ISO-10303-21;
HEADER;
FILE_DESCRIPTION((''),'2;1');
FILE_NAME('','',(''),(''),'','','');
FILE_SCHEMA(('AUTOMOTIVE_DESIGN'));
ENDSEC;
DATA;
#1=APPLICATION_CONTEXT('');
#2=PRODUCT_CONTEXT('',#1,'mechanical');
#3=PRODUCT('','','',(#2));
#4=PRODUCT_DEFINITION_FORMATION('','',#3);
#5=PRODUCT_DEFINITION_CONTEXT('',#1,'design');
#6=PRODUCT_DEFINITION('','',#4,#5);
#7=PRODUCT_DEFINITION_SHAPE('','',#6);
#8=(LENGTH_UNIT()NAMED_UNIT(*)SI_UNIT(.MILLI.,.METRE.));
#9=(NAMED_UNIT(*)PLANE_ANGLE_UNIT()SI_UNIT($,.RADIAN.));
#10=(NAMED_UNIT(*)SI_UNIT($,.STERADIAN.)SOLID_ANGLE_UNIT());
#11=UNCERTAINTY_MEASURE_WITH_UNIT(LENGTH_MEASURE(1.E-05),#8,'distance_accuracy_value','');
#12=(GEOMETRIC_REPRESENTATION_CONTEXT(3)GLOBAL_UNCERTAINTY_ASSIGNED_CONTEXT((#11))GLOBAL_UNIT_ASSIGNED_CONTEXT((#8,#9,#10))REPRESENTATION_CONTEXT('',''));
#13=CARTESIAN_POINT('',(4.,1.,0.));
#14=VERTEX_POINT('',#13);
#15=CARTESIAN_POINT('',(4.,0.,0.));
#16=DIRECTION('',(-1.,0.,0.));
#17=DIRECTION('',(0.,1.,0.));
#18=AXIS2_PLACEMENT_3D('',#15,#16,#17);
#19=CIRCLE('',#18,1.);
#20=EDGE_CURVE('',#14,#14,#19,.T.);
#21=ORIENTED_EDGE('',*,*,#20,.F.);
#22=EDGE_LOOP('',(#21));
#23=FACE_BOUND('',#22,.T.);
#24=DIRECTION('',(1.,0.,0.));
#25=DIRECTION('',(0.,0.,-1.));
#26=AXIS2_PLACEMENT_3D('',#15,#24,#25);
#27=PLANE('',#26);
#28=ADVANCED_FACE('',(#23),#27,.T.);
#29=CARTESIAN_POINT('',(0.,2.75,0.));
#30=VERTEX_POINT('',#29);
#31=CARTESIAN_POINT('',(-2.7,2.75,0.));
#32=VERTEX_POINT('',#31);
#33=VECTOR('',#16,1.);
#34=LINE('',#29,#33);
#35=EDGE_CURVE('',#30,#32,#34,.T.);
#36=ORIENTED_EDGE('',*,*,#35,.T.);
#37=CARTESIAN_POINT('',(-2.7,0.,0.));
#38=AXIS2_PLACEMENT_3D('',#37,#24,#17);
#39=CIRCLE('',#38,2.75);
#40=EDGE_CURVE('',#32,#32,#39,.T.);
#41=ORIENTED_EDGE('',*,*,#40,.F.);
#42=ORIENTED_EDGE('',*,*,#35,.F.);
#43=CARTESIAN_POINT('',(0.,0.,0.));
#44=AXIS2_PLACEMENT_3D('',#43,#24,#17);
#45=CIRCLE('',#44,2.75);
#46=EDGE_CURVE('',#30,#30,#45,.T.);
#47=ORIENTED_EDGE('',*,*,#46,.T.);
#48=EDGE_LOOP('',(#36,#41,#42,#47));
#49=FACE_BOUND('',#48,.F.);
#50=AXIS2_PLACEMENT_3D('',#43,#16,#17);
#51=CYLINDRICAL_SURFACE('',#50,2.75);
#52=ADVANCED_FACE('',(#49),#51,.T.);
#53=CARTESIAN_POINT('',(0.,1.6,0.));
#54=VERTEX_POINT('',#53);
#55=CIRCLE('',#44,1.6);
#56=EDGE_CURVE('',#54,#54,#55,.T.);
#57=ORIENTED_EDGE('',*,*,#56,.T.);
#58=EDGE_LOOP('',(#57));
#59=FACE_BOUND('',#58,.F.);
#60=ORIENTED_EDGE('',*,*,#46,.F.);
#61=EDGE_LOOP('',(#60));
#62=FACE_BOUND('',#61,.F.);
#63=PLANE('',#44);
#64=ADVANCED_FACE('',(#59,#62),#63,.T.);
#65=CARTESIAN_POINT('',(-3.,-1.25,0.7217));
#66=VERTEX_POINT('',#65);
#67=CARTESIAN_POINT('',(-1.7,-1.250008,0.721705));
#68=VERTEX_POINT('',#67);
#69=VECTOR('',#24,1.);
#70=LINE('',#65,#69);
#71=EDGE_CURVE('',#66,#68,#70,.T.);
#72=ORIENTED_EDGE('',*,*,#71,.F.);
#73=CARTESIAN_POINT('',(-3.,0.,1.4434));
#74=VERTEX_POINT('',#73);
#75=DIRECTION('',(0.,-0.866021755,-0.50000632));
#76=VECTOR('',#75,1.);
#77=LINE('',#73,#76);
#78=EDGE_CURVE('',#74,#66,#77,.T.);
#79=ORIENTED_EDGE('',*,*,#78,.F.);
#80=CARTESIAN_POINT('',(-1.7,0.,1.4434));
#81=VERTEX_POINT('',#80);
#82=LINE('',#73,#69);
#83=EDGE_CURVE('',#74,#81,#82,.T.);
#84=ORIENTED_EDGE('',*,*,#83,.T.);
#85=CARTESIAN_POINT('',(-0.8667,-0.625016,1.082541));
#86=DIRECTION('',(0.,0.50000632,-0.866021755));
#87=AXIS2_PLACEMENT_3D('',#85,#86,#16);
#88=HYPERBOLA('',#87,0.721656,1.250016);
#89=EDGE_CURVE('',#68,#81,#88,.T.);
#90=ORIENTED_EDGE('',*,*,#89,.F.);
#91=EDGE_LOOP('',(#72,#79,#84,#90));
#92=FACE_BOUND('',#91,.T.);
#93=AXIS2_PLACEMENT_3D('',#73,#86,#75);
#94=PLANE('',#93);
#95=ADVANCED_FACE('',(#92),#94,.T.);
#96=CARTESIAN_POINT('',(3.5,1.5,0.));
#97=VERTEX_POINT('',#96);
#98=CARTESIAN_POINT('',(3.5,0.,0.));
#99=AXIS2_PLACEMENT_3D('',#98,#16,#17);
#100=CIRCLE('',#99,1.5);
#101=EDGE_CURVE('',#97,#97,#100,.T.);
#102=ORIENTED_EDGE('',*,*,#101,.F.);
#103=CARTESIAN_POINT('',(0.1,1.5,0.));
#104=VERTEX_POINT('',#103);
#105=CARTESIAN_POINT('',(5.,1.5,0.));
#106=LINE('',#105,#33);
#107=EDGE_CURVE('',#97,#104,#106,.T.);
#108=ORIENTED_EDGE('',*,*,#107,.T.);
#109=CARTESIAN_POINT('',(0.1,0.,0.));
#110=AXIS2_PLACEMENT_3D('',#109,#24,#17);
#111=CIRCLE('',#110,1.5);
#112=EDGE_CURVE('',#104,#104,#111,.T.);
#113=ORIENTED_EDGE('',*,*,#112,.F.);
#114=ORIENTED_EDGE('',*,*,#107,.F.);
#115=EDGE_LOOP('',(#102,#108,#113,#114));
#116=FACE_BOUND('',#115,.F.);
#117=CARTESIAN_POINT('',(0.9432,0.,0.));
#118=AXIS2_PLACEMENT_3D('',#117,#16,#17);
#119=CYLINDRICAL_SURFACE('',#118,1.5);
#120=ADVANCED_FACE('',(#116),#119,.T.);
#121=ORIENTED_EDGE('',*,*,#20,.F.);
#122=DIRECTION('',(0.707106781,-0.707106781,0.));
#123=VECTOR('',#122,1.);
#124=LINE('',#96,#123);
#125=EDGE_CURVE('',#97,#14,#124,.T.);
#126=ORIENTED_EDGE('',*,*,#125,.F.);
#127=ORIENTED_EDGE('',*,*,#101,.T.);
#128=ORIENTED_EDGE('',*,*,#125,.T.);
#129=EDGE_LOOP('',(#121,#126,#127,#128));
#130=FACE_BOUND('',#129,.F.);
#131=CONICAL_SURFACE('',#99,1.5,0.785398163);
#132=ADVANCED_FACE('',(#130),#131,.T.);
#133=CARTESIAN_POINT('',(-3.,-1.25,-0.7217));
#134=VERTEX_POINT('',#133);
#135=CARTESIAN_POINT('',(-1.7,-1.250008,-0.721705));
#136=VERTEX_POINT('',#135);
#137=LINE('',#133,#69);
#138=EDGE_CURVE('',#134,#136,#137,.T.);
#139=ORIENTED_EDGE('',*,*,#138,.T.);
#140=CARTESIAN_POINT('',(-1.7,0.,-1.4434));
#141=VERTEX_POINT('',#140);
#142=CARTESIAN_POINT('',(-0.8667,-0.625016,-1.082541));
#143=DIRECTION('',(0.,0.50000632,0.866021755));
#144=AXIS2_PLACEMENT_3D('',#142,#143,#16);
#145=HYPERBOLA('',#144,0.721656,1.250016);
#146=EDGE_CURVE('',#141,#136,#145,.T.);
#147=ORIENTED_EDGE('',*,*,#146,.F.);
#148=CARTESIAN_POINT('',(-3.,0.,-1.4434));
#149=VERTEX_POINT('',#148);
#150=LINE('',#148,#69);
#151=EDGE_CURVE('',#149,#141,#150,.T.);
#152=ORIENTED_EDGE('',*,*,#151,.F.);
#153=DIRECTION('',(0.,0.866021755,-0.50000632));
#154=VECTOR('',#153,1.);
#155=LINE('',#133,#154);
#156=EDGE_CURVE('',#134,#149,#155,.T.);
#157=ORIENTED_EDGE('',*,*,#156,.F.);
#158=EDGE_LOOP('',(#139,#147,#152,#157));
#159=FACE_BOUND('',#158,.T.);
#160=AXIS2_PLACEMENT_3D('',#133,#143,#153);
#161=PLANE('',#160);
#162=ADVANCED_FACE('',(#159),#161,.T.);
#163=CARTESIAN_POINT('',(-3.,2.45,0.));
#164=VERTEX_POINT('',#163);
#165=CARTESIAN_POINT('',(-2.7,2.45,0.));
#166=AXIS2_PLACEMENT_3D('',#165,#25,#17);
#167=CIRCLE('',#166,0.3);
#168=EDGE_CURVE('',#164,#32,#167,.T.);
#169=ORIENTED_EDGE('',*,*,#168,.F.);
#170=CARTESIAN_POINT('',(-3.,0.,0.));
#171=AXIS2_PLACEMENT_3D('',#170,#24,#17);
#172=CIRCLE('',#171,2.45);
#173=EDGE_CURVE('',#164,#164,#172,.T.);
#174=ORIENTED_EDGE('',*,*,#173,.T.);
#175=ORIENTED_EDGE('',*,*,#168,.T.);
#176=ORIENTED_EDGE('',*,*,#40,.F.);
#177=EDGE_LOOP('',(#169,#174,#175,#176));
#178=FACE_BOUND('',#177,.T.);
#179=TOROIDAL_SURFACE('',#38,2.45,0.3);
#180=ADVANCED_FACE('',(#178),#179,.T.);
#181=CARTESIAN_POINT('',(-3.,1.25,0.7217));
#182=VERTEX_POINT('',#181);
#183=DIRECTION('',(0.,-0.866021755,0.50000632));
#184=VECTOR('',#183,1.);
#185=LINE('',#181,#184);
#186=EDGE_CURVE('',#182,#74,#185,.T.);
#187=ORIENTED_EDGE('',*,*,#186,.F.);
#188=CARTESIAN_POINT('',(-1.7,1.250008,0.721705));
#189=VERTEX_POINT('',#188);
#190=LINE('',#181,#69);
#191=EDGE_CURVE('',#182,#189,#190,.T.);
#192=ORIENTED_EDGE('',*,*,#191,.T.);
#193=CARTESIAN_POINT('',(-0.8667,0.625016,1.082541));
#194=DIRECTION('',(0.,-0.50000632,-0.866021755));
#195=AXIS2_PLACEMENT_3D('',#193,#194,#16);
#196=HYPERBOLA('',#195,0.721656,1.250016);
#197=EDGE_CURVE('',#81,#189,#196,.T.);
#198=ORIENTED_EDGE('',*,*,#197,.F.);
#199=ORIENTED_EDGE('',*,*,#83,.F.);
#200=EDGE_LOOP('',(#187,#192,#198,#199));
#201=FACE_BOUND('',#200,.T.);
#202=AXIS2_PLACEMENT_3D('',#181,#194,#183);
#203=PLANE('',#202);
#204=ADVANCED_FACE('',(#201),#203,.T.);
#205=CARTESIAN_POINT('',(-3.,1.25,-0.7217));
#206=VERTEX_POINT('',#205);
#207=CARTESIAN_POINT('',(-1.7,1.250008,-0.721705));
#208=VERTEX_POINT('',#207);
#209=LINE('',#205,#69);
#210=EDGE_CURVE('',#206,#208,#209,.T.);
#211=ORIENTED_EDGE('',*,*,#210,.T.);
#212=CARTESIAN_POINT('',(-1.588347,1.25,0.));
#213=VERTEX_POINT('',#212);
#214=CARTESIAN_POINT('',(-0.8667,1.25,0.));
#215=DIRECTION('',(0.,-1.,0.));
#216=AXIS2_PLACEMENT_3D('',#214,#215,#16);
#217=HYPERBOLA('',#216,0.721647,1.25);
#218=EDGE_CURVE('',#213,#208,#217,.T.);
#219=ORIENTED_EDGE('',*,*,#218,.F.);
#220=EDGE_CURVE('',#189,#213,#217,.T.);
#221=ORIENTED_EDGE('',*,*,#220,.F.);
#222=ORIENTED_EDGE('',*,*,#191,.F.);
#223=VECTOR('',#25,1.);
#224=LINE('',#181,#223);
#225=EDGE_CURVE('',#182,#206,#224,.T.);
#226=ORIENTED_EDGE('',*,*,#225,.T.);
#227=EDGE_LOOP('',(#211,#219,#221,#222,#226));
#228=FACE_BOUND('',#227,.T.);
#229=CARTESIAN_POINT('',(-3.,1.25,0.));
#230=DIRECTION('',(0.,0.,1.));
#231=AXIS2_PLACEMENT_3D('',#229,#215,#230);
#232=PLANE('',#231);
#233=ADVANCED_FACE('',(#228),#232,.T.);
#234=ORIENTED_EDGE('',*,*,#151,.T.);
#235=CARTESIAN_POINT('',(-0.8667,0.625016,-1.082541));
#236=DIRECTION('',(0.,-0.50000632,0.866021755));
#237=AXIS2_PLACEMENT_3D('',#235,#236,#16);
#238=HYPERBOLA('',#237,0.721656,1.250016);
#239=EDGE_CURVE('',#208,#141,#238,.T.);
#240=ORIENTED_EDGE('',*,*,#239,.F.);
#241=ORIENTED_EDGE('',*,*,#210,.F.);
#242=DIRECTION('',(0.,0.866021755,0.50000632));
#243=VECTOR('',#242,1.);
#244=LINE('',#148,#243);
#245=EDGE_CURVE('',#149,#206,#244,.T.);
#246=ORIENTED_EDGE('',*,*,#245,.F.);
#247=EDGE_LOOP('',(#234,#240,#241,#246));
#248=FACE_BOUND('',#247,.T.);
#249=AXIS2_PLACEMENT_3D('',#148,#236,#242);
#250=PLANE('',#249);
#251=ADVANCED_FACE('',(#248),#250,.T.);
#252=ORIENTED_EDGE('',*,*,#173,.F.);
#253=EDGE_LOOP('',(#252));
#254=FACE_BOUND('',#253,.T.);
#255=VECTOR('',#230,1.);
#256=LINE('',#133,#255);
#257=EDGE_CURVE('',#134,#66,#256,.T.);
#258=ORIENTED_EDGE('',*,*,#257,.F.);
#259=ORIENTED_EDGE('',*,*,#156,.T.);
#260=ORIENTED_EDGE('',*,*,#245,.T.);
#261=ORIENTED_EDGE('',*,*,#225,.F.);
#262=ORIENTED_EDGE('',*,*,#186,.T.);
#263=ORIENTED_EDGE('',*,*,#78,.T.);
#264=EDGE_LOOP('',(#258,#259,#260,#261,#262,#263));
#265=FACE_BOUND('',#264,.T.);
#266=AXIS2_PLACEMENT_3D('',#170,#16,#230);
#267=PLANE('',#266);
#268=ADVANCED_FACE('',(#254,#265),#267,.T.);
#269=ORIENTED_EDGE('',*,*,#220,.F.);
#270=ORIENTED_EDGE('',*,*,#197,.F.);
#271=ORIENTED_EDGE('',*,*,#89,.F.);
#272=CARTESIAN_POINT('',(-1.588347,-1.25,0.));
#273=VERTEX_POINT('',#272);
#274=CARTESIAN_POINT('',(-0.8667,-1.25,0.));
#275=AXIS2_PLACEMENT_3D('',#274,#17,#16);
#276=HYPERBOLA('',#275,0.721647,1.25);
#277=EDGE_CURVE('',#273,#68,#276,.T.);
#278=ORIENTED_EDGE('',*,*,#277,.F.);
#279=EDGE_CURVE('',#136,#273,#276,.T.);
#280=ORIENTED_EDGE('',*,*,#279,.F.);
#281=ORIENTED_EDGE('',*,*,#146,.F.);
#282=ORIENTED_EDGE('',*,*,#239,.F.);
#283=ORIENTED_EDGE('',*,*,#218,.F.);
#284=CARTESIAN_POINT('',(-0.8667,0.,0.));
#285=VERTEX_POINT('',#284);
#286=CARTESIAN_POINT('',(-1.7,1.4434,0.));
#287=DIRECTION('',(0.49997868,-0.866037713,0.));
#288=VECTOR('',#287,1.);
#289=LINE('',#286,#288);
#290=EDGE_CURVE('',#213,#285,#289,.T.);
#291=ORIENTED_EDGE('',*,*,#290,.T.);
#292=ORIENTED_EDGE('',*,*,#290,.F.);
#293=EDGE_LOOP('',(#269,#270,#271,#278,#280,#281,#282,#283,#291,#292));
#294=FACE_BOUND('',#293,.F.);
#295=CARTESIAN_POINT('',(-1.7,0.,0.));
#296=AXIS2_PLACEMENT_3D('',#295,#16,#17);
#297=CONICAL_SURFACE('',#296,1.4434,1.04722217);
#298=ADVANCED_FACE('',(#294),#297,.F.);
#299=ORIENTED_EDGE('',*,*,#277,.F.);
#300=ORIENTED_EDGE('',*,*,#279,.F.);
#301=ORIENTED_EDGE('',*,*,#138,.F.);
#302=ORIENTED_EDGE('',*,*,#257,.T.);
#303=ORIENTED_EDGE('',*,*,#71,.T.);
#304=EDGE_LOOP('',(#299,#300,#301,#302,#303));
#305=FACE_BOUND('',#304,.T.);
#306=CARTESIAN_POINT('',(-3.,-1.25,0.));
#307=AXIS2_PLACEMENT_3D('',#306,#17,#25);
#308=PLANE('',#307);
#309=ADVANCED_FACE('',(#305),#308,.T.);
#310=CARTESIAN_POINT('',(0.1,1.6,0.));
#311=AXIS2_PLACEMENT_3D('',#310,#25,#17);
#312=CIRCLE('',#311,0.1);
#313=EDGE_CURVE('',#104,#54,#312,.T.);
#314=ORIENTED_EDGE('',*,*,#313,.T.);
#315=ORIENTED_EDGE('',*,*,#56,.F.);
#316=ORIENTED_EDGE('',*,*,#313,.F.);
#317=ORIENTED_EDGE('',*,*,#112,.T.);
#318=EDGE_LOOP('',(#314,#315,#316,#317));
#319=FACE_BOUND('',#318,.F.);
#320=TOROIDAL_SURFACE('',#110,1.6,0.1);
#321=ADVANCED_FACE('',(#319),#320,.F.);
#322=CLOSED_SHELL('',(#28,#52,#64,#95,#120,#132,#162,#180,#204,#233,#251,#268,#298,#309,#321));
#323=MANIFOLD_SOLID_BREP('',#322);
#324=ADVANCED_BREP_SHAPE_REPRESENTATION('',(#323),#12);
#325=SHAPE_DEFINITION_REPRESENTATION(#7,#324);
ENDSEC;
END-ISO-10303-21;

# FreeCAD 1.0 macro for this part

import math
import FreeCAD as App
import Part
import Sketcher
from FreeCAD import Vector
Q = App.Units.Quantity


def edges_at(feature, points):
    """Names of the edges that pass closest to the given points."""
    edges = feature.Shape.Edges
    near = lambda p: min(range(len(edges)), key=lambda i: edges[i].distToShape(Part.Vertex(*p))[0])
    return sorted({f"Edge{near(p) + 1}" for p in points})


def add_polygon(sketch, points):
    """Adds a closed chain of lines whose ends are joined by coincident constraints."""
    first, n = sketch.GeometryCount, len(points)
    for a, b in zip(points, points[1:] + points[:1]):
        sketch.addGeometry(Part.LineSegment(App.Vector(*a, 0), App.Vector(*b, 0)), False)
    for i in range(n):
        sketch.addConstraint(Sketcher.Constraint("Coincident", first + i, 2, first + (i + 1) % n, 1))

doc = App.newDocument("Part")
body = doc.addObject("PartDesign::Body", "Body")

sketch1 = body.newObject("Sketcher::SketchObject", "Sketch")
sketch1.AttachmentSupport = (doc.getObject("XY_Plane"), [""])
sketch1.MapMode = "FlatFace"
add_polygon(sketch1, [(-1.7, 1.4), (-0.9, 0), (5, 0), (5, 1.5), (0, 1.5), (0, 2.8), (-3, 2.8), (-3, 1.4)])
sketch1.addConstraint([
    Sketcher.Constraint("Horizontal", 1),
    Sketcher.Constraint("Vertical", 2),
    Sketcher.Constraint("Horizontal", 3),
    Sketcher.Constraint("Vertical", 4),
    Sketcher.Constraint("Horizontal", 5),
    Sketcher.Constraint("Vertical", 6),
    Sketcher.Constraint("Horizontal", 7),
    Sketcher.Constraint("PointOnObject", 0, 2, -1),
    Sketcher.Constraint("PointOnObject", 3, 2, -2),
    Sketcher.Constraint("DistanceX", 3, 2, 3, 1, Q("5 mm")),
    Sketcher.Constraint("DistanceX", 5, 2, 5, 1, Q("3 mm")),
    Sketcher.Constraint("DistanceX", 7, 1, 7, 2, Q("1.3 mm")),
    Sketcher.Constraint("DistanceY", 2, 1, 2, 2, Q("1.5 mm")),
    Sketcher.Constraint("DistanceY", 4, 1, 4, 2, Q("1.25 mm")),
    Sketcher.Constraint("DistanceX", 1, 1, 1, 2, Q("5.8667 mm")),
    Sketcher.Constraint("DistanceY", 6, 2, 6, 1, Q("1.3066 mm")),
])
revolution = body.newObject("PartDesign::Revolution", "Revolution")
revolution.Profile = sketch1
revolution.ReferenceAxis = (sketch1, ["H_Axis"])
revolution.Angle = 360

sketch2 = body.newObject("Sketcher::SketchObject", "Sketch001")
sketch2.AttachmentSupport = (doc.getObject("YZ_Plane"), [""])
sketch2.MapMode = "FlatFace"
sketch2.AttachmentOffset = App.Placement(Vector(0, 0, -3), App.Rotation())
sketch2.addGeometry([
    Part.LineSegment(Vector(1.2, 0.7, 0), Vector(0, 1.4, 0)),
    Part.ArcOfCircle(Part.Circle(Vector(0, 0, 0), Vector(0, 0, 1), 1.4), math.radians(30), math.radians(90)),
    Part.ArcOfCircle(Part.Circle(Vector(0, 0, 0), Vector(0, 0, 1), 1.4), math.radians(90), math.radians(150)),
    Part.LineSegment(Vector(0, 1.4, 0), Vector(-1.2, 0.7, 0)),
    Part.ArcOfCircle(Part.Circle(Vector(0, 0, 0), Vector(0, 0, 1), 1.4), math.radians(-30), math.radians(30)),
    Part.LineSegment(Vector(1.2, 0.7, 0), Vector(1.2, -0.7, 0)),
    Part.LineSegment(Vector(-1.2, 0.7, 0), Vector(-1.2, -0.7, 0)),
    Part.ArcOfCircle(Part.Circle(Vector(0, 0, 0), Vector(0, 0, 1), 1.4), math.radians(150), math.radians(210)),
    Part.LineSegment(Vector(-1.2, -0.7, 0), Vector(0, -1.4, 0)),
    Part.ArcOfCircle(Part.Circle(Vector(0, 0, 0), Vector(0, 0, 1), 1.4), math.radians(-150), math.radians(-90)),
    Part.ArcOfCircle(Part.Circle(Vector(0, 0, 0), Vector(0, 0, 1), 1.4), math.radians(-90), math.radians(-30)),
    Part.LineSegment(Vector(0, -1.4, 0), Vector(1.2, -0.7, 0)),
], False)
sketch2.addConstraint([
    Sketcher.Constraint("Coincident", 0, 1, 1, 1),
    Sketcher.Constraint("Coincident", 1, 2, 0, 2),
    Sketcher.Constraint("Coincident", 2, 1, 3, 1),
    Sketcher.Constraint("Coincident", 3, 2, 2, 2),
    Sketcher.Constraint("Coincident", 4, 1, 5, 2),
    Sketcher.Constraint("Coincident", 5, 1, 4, 2),
    Sketcher.Constraint("Coincident", 6, 1, 7, 1),
    Sketcher.Constraint("Coincident", 7, 2, 6, 2),
    Sketcher.Constraint("Coincident", 8, 1, 9, 1),
    Sketcher.Constraint("Coincident", 9, 2, 8, 2),
    Sketcher.Constraint("Coincident", 10, 1, 11, 1),
    Sketcher.Constraint("Coincident", 11, 2, 10, 2),
    Sketcher.Constraint("Vertical", 5),
    Sketcher.Constraint("Vertical", 6),
    Sketcher.Constraint("Coincident", 1, 3, -1, 1),
    Sketcher.Constraint("Coincident", 2, 3, -1, 1),
    Sketcher.Constraint("Coincident", 4, 3, -1, 1),
    Sketcher.Constraint("Coincident", 7, 3, -1, 1),
    Sketcher.Constraint("Coincident", 9, 3, -1, 1),
    Sketcher.Constraint("Coincident", 10, 3, -1, 1),
    Sketcher.Constraint("Coincident", 2, 1, 1, 2),
    Sketcher.Constraint("Coincident", 5, 1, 0, 1),
    Sketcher.Constraint("Coincident", 6, 1, 3, 2),
    Sketcher.Constraint("Coincident", 8, 1, 7, 2),
    Sketcher.Constraint("Coincident", 10, 1, 9, 2),
    Sketcher.Constraint("PointOnObject", 1, 2, -2),
    Sketcher.Constraint("PointOnObject", 9, 2, -2),
    Sketcher.Constraint("Parallel", 0, 8),
    Sketcher.Constraint("Parallel", 3, 11),
    Sketcher.Constraint("Angle", 0, Q("149.9996 deg")),
    Sketcher.Constraint("Radius", 1, Q("1.4434 mm")),
])
pad1 = body.newObject("PartDesign::Pad", "Pad")
pad1.Profile = sketch2
pad1.Type = "UpToFirst"
doc.recompute()

fillet = body.newObject("PartDesign::Fillet", "Fillet")
fillet.Base = (pad1, edges_at(pad1, [(-3, -2.75, 0)]))
fillet.Radius = 0.3
doc.recompute()

chamfer = body.newObject("PartDesign::Chamfer", "Chamfer")
chamfer.Base = (fillet, edges_at(fillet, [(5, -1.5, 0)]))
chamfer.ChamferType = "Two distances"
chamfer.Size = 0.3067
chamfer.Size2 = 0.3067
doc.recompute()

fillet2 = body.newObject("PartDesign::Fillet", "Fillet001")
fillet2.Base = (chamfer, edges_at(chamfer, [(0, -1.5, 0)]))
fillet2.Radius = 0.1

sketch3 = body.newObject("Sketcher::SketchObject", "Sketch002")
sketch3.AttachmentSupport = (doc.getObject("YZ_Plane"), [""])
sketch3.MapMode = "FlatFace"
sketch3.AttachmentOffset = App.Placement(Vector(0, 0, 5), App.Rotation())
sketch3.addGeometry(Part.Circle(Vector(0, 0, 0), Vector(0, 0, 1), 1.6), False)
sketch3.addConstraint([
    Sketcher.Constraint("Coincident", 0, 3, -1, 1),
    Sketcher.Constraint("Diameter", 0, Q("3.2 mm")),
])
pocket1 = body.newObject("PartDesign::Pocket", "Pocket")
pocket1.Profile = sketch3
pocket1.Length = 1
doc.recompute()

chamfer2 = body.newObject("PartDesign::Chamfer", "Chamfer001")
chamfer2.Base = (pocket1, edges_at(pocket1, [(4, -1.5, 0)]))
chamfer2.Size = 0.5

doc.recompute()
